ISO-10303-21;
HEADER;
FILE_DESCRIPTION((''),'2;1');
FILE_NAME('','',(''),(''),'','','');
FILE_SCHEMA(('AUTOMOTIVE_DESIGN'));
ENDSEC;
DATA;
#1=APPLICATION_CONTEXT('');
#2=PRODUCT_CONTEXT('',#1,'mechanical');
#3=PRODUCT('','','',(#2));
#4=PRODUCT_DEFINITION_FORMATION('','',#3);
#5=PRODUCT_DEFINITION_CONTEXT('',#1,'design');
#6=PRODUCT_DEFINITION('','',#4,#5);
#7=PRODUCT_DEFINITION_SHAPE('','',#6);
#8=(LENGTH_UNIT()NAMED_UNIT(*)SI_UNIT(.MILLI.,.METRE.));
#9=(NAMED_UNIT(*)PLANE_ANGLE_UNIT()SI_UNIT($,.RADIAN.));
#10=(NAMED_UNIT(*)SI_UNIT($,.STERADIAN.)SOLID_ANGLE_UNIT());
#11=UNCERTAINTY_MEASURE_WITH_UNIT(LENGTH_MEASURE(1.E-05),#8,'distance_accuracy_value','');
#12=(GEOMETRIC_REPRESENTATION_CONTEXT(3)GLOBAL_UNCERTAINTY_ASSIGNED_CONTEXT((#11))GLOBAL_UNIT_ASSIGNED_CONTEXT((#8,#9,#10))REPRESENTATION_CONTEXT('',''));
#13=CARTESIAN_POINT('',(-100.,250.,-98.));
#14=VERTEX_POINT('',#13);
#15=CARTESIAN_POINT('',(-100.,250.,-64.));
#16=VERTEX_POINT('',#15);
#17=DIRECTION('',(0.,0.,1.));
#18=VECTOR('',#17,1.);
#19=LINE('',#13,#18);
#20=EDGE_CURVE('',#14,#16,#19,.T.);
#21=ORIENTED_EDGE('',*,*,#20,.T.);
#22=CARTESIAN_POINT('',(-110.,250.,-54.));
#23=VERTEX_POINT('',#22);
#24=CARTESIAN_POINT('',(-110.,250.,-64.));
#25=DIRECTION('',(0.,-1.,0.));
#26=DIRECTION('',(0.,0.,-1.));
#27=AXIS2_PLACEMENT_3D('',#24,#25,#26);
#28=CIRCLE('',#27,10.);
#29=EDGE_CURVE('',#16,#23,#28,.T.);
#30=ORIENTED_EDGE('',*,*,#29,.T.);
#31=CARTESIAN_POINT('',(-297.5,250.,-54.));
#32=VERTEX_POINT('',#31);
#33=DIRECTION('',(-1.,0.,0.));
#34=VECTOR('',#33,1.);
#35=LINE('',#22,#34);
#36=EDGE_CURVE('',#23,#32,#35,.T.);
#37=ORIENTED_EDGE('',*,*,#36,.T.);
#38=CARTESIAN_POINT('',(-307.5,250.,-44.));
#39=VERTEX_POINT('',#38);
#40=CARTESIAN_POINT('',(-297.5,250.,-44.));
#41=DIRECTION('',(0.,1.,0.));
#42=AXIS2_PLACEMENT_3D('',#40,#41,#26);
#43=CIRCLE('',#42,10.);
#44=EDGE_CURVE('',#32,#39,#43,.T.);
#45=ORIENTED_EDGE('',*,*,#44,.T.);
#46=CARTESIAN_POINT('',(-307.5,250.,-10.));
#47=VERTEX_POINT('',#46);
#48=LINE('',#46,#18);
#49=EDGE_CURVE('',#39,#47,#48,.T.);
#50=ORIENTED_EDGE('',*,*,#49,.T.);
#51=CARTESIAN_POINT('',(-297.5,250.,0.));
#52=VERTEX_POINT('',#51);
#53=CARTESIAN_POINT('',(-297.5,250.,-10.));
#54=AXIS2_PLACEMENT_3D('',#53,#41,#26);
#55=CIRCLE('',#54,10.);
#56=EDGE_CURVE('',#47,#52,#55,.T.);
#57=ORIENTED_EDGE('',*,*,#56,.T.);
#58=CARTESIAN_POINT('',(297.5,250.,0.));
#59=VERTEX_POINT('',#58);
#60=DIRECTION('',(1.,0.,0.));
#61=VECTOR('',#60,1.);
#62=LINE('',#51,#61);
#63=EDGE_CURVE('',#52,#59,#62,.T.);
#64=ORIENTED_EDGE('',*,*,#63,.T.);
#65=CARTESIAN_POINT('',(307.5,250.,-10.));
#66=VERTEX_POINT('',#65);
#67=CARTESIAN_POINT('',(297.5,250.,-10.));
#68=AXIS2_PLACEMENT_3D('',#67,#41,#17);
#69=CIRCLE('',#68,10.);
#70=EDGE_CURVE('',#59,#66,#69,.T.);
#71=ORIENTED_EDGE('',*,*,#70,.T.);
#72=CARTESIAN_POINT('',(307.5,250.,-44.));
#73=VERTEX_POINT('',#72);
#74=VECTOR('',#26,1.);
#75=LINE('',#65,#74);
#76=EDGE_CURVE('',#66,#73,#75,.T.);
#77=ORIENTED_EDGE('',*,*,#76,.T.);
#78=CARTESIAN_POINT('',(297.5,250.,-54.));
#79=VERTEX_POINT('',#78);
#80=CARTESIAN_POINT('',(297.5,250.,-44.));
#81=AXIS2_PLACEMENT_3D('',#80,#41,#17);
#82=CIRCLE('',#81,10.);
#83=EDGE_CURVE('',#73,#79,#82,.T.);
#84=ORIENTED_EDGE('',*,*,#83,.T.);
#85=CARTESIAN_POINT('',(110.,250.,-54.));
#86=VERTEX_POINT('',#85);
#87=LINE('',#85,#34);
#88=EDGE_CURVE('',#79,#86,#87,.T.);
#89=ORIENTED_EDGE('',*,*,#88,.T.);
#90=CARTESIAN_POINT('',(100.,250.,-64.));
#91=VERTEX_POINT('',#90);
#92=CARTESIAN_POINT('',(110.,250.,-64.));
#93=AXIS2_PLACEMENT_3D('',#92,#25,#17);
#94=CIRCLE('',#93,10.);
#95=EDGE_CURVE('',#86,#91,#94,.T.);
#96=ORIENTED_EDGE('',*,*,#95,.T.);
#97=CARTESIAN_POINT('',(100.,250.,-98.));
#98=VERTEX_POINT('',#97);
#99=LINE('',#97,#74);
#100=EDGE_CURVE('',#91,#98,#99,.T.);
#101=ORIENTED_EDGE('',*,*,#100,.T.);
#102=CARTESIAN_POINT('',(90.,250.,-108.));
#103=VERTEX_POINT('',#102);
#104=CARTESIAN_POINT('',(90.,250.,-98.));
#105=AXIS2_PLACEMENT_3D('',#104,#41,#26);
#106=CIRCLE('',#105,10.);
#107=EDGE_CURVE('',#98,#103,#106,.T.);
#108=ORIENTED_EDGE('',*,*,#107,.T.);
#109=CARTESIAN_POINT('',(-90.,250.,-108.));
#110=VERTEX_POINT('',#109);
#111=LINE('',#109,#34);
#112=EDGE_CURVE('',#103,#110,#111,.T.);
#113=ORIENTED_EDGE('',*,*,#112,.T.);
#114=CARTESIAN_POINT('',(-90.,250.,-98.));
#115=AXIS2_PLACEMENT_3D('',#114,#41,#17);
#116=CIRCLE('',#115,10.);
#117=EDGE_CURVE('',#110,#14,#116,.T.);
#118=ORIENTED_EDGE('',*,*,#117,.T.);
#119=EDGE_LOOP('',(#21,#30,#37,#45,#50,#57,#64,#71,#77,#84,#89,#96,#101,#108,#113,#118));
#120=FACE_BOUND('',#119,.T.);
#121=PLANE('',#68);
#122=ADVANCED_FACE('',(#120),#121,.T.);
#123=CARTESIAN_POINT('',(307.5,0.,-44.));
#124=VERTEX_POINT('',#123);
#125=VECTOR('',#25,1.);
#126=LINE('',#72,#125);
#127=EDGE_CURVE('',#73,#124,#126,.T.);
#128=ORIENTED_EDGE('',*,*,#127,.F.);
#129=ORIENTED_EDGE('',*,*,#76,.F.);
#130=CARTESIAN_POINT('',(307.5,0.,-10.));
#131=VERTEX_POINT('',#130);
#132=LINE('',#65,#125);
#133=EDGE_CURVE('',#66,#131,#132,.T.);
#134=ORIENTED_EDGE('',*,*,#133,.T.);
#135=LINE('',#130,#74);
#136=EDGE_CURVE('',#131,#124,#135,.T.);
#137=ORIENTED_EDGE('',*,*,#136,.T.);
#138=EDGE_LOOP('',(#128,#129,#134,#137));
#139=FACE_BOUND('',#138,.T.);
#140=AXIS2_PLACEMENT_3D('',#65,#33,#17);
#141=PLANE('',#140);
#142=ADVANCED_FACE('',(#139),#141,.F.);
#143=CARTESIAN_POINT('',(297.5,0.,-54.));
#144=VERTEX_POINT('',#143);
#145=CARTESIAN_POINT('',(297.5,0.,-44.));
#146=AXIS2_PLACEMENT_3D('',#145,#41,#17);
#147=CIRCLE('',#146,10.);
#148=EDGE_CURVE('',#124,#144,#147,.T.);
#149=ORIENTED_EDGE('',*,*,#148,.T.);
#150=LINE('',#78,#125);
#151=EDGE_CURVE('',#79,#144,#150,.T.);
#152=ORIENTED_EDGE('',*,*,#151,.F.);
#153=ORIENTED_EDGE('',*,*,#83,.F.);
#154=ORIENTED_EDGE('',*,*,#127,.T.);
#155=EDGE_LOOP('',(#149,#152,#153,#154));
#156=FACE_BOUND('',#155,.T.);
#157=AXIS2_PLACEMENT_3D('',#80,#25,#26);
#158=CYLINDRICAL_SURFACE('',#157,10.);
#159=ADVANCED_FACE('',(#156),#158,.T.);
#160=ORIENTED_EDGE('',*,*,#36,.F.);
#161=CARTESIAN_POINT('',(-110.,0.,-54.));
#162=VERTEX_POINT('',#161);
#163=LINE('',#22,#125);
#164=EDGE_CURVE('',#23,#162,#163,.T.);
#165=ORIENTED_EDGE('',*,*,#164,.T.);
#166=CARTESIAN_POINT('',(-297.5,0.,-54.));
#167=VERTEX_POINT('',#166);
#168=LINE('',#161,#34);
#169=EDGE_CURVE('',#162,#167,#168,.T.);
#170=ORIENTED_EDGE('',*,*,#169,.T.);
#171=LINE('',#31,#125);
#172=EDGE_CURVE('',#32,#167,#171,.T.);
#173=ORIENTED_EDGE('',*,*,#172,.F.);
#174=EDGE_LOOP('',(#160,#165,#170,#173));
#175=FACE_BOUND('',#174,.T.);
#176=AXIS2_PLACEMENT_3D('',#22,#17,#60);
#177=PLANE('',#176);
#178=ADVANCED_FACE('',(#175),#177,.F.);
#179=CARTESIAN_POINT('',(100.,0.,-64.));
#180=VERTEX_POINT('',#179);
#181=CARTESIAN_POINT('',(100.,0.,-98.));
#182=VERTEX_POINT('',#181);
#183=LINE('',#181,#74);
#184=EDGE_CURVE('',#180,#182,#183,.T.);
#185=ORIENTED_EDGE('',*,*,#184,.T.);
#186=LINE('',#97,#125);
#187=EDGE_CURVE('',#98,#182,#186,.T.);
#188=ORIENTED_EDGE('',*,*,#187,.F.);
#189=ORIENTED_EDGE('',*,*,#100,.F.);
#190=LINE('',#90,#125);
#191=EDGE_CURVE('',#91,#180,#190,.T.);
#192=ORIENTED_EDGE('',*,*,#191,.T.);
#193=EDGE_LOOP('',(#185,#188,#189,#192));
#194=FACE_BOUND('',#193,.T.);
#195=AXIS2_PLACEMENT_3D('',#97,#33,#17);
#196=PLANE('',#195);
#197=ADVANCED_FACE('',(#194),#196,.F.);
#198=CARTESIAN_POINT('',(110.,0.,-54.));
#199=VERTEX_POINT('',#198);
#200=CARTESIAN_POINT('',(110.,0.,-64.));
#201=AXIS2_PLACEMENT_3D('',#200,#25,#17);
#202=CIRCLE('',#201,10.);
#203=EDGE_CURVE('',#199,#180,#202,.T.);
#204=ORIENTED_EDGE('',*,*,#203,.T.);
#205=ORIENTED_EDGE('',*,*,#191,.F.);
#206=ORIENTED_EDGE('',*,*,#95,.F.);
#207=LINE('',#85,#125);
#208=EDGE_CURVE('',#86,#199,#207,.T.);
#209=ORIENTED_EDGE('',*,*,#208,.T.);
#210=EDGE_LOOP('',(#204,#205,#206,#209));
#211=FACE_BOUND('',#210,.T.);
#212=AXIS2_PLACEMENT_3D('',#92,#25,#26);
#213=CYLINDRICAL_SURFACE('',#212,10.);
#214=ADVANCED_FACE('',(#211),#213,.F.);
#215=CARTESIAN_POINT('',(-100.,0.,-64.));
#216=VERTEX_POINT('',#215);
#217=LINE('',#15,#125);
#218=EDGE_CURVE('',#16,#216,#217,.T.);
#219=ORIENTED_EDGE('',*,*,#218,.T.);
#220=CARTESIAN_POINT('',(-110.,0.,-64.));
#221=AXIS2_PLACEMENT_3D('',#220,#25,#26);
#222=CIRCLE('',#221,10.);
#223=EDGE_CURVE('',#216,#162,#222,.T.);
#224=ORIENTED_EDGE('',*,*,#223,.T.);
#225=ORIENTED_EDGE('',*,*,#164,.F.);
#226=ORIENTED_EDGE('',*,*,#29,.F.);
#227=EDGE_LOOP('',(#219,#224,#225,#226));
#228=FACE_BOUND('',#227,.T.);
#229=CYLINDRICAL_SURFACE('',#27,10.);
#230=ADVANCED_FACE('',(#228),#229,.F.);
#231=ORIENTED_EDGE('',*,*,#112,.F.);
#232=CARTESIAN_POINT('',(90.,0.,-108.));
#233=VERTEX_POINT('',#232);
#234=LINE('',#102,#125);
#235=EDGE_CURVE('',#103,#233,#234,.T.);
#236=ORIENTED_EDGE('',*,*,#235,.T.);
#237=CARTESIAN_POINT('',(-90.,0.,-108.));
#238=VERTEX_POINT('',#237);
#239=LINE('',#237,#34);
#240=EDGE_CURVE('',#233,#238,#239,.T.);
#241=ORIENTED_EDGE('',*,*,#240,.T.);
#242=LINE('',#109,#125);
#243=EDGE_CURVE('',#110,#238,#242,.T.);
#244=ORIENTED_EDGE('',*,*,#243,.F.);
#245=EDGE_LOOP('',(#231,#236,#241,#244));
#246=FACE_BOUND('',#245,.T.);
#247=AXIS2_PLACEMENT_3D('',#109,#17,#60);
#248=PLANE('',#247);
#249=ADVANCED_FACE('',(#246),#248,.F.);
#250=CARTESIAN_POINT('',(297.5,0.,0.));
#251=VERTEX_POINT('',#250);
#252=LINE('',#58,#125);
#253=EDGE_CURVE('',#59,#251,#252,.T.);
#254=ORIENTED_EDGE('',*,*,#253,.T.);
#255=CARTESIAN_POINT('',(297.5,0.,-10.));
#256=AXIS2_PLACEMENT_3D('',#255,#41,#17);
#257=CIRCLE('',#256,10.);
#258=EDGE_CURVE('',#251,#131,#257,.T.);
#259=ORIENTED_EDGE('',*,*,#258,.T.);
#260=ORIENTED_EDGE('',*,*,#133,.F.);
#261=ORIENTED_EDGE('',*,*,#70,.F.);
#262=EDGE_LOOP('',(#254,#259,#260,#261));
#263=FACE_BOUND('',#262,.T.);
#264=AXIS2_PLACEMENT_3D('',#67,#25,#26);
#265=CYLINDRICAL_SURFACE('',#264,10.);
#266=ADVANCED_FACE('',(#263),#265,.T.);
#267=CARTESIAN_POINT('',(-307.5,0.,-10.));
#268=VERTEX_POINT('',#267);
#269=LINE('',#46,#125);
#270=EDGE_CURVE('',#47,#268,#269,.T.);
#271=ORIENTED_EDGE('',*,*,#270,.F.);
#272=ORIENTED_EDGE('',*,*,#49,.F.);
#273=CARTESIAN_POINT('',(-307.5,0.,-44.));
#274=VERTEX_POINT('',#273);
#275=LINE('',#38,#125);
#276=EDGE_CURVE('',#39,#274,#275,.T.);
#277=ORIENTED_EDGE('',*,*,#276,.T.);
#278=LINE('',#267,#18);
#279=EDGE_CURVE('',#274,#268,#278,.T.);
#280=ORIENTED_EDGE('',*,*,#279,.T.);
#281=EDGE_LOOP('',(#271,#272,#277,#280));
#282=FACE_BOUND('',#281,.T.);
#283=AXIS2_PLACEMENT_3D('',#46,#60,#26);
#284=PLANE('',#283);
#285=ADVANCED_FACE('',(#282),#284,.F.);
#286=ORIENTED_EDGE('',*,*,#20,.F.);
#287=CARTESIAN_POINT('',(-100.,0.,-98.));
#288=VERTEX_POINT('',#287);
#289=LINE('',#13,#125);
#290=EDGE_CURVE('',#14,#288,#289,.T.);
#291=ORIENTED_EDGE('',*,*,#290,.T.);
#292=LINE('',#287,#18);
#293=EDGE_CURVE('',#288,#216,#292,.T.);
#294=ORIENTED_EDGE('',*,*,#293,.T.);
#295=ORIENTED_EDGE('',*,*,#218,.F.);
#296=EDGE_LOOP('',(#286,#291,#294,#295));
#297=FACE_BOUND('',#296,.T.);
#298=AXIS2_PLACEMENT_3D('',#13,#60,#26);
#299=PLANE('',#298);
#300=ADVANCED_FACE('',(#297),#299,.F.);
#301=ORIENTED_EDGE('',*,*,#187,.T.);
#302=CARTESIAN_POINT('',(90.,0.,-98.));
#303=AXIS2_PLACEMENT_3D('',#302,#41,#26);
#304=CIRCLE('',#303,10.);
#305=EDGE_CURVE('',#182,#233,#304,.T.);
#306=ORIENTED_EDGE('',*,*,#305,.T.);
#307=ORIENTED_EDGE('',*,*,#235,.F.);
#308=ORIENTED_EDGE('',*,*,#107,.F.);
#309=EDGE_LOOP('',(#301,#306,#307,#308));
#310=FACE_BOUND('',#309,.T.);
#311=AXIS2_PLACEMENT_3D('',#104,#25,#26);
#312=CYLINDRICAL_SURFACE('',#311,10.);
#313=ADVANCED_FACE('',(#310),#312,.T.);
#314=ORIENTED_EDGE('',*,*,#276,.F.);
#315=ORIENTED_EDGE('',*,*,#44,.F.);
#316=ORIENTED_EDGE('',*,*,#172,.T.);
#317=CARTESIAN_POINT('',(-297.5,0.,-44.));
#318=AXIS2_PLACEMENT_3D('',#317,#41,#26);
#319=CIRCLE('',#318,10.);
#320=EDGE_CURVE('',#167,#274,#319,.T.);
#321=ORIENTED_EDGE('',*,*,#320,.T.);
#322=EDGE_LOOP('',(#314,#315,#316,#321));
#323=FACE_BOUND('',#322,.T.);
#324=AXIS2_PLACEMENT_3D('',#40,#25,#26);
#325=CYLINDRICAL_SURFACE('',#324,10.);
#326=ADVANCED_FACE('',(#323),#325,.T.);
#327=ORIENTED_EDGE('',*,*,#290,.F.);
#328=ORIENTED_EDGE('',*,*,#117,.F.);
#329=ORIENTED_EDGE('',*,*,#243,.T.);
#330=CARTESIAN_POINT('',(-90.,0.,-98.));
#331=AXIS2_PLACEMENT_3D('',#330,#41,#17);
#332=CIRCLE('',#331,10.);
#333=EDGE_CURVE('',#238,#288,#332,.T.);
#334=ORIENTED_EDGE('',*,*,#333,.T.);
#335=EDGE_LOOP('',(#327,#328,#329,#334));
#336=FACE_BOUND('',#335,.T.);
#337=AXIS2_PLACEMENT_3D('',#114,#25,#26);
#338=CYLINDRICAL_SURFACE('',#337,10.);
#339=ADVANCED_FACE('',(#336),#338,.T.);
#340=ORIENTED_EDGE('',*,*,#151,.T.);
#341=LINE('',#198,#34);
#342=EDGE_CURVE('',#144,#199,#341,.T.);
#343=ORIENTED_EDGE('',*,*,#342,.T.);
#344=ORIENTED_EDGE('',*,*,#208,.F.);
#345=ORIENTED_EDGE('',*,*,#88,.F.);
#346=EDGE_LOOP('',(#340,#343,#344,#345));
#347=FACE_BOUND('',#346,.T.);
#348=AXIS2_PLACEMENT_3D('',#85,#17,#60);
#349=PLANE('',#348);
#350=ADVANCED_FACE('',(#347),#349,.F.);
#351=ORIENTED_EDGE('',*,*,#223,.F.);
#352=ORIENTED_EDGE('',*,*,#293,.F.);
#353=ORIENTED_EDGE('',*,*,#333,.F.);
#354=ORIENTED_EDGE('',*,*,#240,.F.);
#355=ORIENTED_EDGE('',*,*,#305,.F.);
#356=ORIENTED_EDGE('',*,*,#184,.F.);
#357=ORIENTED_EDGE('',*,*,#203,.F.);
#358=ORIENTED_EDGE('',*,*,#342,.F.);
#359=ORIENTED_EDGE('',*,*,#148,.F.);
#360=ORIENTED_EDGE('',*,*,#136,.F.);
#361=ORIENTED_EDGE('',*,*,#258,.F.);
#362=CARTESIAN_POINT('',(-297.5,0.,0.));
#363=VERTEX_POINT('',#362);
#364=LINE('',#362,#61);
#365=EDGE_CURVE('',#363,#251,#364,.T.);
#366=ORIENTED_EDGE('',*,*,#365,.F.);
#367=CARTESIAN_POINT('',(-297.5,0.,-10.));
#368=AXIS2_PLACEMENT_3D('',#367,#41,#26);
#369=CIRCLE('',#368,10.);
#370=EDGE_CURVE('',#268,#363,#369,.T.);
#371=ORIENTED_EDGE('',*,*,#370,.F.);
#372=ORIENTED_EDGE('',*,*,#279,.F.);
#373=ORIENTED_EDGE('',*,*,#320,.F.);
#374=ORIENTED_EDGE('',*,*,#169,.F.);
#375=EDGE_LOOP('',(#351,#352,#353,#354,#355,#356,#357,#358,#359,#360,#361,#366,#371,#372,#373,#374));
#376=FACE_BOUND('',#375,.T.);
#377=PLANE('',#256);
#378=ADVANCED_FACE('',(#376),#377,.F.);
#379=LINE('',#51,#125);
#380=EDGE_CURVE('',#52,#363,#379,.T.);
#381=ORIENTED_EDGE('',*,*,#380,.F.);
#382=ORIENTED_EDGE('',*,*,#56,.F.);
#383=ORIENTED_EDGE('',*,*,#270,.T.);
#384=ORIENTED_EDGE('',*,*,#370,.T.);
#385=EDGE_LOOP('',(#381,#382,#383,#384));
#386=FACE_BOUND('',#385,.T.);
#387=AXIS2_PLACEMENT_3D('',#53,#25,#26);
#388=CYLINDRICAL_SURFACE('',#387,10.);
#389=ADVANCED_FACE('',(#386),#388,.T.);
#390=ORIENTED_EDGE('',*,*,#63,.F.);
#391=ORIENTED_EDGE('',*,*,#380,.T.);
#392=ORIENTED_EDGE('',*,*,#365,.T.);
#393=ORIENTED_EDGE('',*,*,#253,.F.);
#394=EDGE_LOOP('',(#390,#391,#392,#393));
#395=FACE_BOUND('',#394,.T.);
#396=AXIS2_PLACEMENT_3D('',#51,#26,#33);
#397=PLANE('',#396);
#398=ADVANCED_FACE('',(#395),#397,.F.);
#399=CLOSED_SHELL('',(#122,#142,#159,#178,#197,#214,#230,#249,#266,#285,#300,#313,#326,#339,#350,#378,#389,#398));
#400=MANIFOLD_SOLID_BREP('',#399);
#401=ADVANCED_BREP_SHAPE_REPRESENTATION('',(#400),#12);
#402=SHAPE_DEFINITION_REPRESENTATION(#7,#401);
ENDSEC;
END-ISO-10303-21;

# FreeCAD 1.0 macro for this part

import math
import FreeCAD as App
import Part
import Sketcher
from FreeCAD import Vector
Q = App.Units.Quantity

doc = App.newDocument("Part")
body = doc.addObject("PartDesign::Body", "Body")

# Sketch on XZ plane
sketch1 = body.newObject("Sketcher::SketchObject", "Sketch")
sketch1.AttachmentSupport = (doc.getObject("XZ_Plane"), [""])
sketch1.MapMode = "FlatFace"
sketch1.addGeometry([
    Part.LineSegment(Vector(-298, 0, 0), Vector(298, 0, 0)),  # 0
    Part.ArcOfCircle(Part.Circle(Vector(298, -10, 0), Vector(0, 0, 1), 10), math.radians(0), math.radians(90)),  # 1
    Part.LineSegment(Vector(308, -10, 0), Vector(308, -44, 0)),  # 2
    Part.ArcOfCircle(Part.Circle(Vector(298, -44, 0), Vector(0, 0, 1), 10), math.radians(-90), math.radians(0)),  # 3
    Part.LineSegment(Vector(298, -54, 0), Vector(110, -54, 0)),  # 4
    Part.ArcOfCircle(Part.Circle(Vector(110, -64, 0), Vector(0, 0, 1), 10), math.radians(90), math.radians(180)),  # 5
    Part.LineSegment(Vector(100, -64, 0), Vector(100, -98, 0)),  # 6
    Part.ArcOfCircle(Part.Circle(Vector(90, -98, 0), Vector(0, 0, 1), 10), math.radians(-90), math.radians(0)),  # 7
    Part.LineSegment(Vector(90, -108, 0), Vector(-90, -108, 0)),  # 8
    Part.ArcOfCircle(Part.Circle(Vector(-90, -98, 0), Vector(0, 0, 1), 10), math.radians(180), math.radians(270)),  # 9
    Part.LineSegment(Vector(-100, -98, 0), Vector(-100, -64, 0)),  # 10
    Part.ArcOfCircle(Part.Circle(Vector(-110, -64, 0), Vector(0, 0, 1), 10), math.radians(0), math.radians(90)),  # 11
    Part.LineSegment(Vector(-110, -54, 0), Vector(-298, -54, 0)),  # 12
    Part.ArcOfCircle(Part.Circle(Vector(-298, -44, 0), Vector(0, 0, 1), 10), math.radians(180), math.radians(270)),  # 13
    Part.LineSegment(Vector(-308, -44, 0), Vector(-308, -10, 0)),  # 14
    Part.ArcOfCircle(Part.Circle(Vector(-298, -10, 0), Vector(0, 0, 1), 10), math.radians(90), math.radians(180)),  # 15
], False)
sketch1.addConstraint([
    Sketcher.Constraint("Tangent", 0, 2, 1, 2),
    Sketcher.Constraint("Tangent", 1, 1, 2, 1),
    Sketcher.Constraint("Tangent", 2, 2, 3, 2),
    Sketcher.Constraint("Tangent", 3, 1, 4, 1),
    Sketcher.Constraint("Tangent", 4, 2, 5, 1),
    Sketcher.Constraint("Tangent", 5, 2, 6, 1),
    Sketcher.Constraint("Tangent", 6, 2, 7, 2),
    Sketcher.Constraint("Tangent", 7, 1, 8, 1),
    Sketcher.Constraint("Tangent", 8, 2, 9, 2),
    Sketcher.Constraint("Tangent", 9, 1, 10, 1),
    Sketcher.Constraint("Tangent", 10, 2, 11, 1),
    Sketcher.Constraint("Tangent", 11, 2, 12, 1),
    Sketcher.Constraint("Tangent", 12, 2, 13, 2),
    Sketcher.Constraint("Tangent", 13, 1, 14, 1),
    Sketcher.Constraint("Tangent", 14, 2, 15, 2),
    Sketcher.Constraint("Tangent", 15, 1, 0, 1),
    Sketcher.Constraint("Horizontal", 0),
    Sketcher.Constraint("Vertical", 2),
    Sketcher.Constraint("Horizontal", 4),
    Sketcher.Constraint("Vertical", 6),
    Sketcher.Constraint("Horizontal", 8),
    Sketcher.Constraint("Vertical", 10),
    Sketcher.Constraint("Horizontal", 12),
    Sketcher.Constraint("Vertical", 14),
    Sketcher.Constraint("Equal", 1, 3),
    Sketcher.Constraint("Equal", 3, 5),
    Sketcher.Constraint("Equal", 5, 7),
    Sketcher.Constraint("Equal", 7, 9),
    Sketcher.Constraint("Equal", 9, 11),
    Sketcher.Constraint("Equal", 11, 13),
    Sketcher.Constraint("Equal", 13, 15),
    Sketcher.Constraint("Symmetric", 0, 2, 15, 1, -1, 1),
    Sketcher.Constraint("Symmetric", 5, 3, 11, 3, -2),
    Sketcher.Constraint("Equal", 2, 6),
    Sketcher.Constraint("Radius", 1, Q("10 mm")),
    Sketcher.Constraint("DistanceX", 0, 1, 0, 2, Q("595 mm")),
    Sketcher.Constraint("DistanceX", 8, 2, 8, 1, Q("180 mm")),
    Sketcher.Constraint("DistanceY", 2, 2, 2, 1, Q("34 mm")),
])
pad1 = body.newObject("PartDesign::Pad", "Pad")
pad1.Profile = sketch1
pad1.Length = 250
pad1.Reversed = True

doc.recompute()
